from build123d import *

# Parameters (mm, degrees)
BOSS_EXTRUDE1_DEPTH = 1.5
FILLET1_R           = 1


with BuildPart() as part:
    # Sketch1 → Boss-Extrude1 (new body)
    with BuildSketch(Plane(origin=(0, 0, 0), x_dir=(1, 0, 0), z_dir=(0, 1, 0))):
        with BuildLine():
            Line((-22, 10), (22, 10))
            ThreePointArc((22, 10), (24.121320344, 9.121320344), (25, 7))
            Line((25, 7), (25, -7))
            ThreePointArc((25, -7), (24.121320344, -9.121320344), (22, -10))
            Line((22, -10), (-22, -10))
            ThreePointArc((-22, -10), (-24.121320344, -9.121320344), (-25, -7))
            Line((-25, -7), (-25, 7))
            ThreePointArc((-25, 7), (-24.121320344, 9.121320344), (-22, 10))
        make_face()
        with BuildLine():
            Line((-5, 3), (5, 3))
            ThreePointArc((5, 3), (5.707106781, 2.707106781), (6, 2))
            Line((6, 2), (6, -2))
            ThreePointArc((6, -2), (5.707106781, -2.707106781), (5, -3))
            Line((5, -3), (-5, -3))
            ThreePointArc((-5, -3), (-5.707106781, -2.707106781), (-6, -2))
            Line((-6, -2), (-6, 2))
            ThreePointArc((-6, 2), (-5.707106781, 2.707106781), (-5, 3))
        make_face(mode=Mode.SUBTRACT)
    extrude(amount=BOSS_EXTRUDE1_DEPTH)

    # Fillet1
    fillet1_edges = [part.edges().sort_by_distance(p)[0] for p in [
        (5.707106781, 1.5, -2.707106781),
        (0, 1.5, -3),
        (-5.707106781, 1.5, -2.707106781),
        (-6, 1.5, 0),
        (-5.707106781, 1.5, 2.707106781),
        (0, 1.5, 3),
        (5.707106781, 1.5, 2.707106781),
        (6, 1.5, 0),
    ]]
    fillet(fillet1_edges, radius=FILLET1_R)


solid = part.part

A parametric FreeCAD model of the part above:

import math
import FreeCAD as App
import Part
import Sketcher

V = App.Vector


def edges_at(feature, points):
    """Names of the edges that pass closest to the given points."""
    edges = feature.Shape.Edges
    near = lambda p: min(range(len(edges)), key=lambda i: edges[i].distToShape(Part.Vertex(*p))[0])
    return sorted({f"Edge{near(p) + 1}" for p in points})

doc = App.newDocument("Part")
body = doc.addObject("PartDesign::Body", "Body")

sketch1 = doc.addObject("Sketcher::SketchObject", "Sketch")
body.addObject(sketch1)
sketch1.AttachmentSupport = (doc.XZ_Plane, [""])
sketch1.MapMode = "FlatFace"
sketch1.addGeometry(Part.LineSegment(V(22, -10, 0), V(-22, -10, 0)), False)
sketch1.addGeometry(Part.ArcOfCircle(Part.Circle(V(-22, -7, 0), V(0, 0, 1), 3), math.radians(180), math.radians(270)), False)
sketch1.addGeometry(Part.LineSegment(V(-25, -7, 0), V(-25, 7, 0)), False)
sketch1.addGeometry(Part.ArcOfCircle(Part.Circle(V(-22, 7, 0), V(0, 0, 1), 3), math.radians(90), math.radians(180)), False)
sketch1.addGeometry(Part.LineSegment(V(-22, 10, 0), V(22, 10, 0)), False)
sketch1.addGeometry(Part.ArcOfCircle(Part.Circle(V(22, 7, 0), V(0, 0, 1), 3), math.radians(0), math.radians(90)), False)
sketch1.addGeometry(Part.LineSegment(V(25, 7, 0), V(25, -7, 0)), False)
sketch1.addGeometry(Part.ArcOfCircle(Part.Circle(V(22, -7, 0), V(0, 0, 1), 3), math.radians(-90), math.radians(0)), False)
sketch1.addGeometry(Part.LineSegment(V(-5, -3, 0), V(5, -3, 0)), False)
sketch1.addGeometry(Part.ArcOfCircle(Part.Circle(V(5, -2, 0), V(0, 0, 1), 1), math.radians(-90), math.radians(0)), False)
sketch1.addGeometry(Part.LineSegment(V(6, -2, 0), V(6, 2, 0)), False)
sketch1.addGeometry(Part.ArcOfCircle(Part.Circle(V(5, 2, 0), V(0, 0, 1), 1), math.radians(0), math.radians(90)), False)
sketch1.addGeometry(Part.LineSegment(V(5, 3, 0), V(-5, 3, 0)), False)
sketch1.addGeometry(Part.ArcOfCircle(Part.Circle(V(-5, 2, 0), V(0, 0, 1), 1), math.radians(90), math.radians(180)), False)
sketch1.addGeometry(Part.LineSegment(V(-6, 2, 0), V(-6, -2, 0)), False)
sketch1.addGeometry(Part.ArcOfCircle(Part.Circle(V(-5, -2, 0), V(0, 0, 1), 1), math.radians(-180), math.radians(-90)), False)
sketch1.addConstraint(Sketcher.Constraint("Tangent", 0, 2, 1, 2))
sketch1.addConstraint(Sketcher.Constraint("Tangent", 1, 1, 2, 1))
sketch1.addConstraint(Sketcher.Constraint("Tangent", 2, 2, 3, 2))
sketch1.addConstraint(Sketcher.Constraint("Tangent", 3, 1, 4, 1))
sketch1.addConstraint(Sketcher.Constraint("Tangent", 4, 2, 5, 2))
sketch1.addConstraint(Sketcher.Constraint("Tangent", 5, 1, 6, 1))
sketch1.addConstraint(Sketcher.Constraint("Tangent", 6, 2, 7, 2))
sketch1.addConstraint(Sketcher.Constraint("Tangent", 7, 1, 0, 1))
sketch1.addConstraint(Sketcher.Constraint("Tangent", 8, 2, 9, 1))
sketch1.addConstraint(Sketcher.Constraint("Tangent", 9, 2, 10, 1))
sketch1.addConstraint(Sketcher.Constraint("Tangent", 10, 2, 11, 1))
sketch1.addConstraint(Sketcher.Constraint("Tangent", 11, 2, 12, 1))
sketch1.addConstraint(Sketcher.Constraint("Tangent", 12, 2, 13, 1))
sketch1.addConstraint(Sketcher.Constraint("Tangent", 13, 2, 14, 1))
sketch1.addConstraint(Sketcher.Constraint("Tangent", 14, 2, 15, 1))
sketch1.addConstraint(Sketcher.Constraint("Tangent", 15, 2, 8, 1))
sketch1.addConstraint(Sketcher.Constraint("Horizontal", 0))
sketch1.addConstraint(Sketcher.Constraint("Vertical", 2))
sketch1.addConstraint(Sketcher.Constraint("Horizontal", 4))
sketch1.addConstraint(Sketcher.Constraint("Vertical", 6))
sketch1.addConstraint(Sketcher.Constraint("Horizontal", 8))
sketch1.addConstraint(Sketcher.Constraint("Vertical", 10))
sketch1.addConstraint(Sketcher.Constraint("Horizontal", 12))
sketch1.addConstraint(Sketcher.Constraint("Vertical", 14))
sketch1.addConstraint(Sketcher.Constraint("Equal", 1, 3))
sketch1.addConstraint(Sketcher.Constraint("Equal", 3, 5))
sketch1.addConstraint(Sketcher.Constraint("Equal", 5, 7))
sketch1.addConstraint(Sketcher.Constraint("Equal", 9, 11))
sketch1.addConstraint(Sketcher.Constraint("Equal", 11, 13))
sketch1.addConstraint(Sketcher.Constraint("Equal", 13, 15))
sketch1.addConstraint(Sketcher.Constraint("Symmetric", 1, 3, 5, 3, -1, 1))
sketch1.addConstraint(Sketcher.Constraint("Symmetric", 9, 3, 13, 3, -1, 1))
sketch1.addConstraint(Sketcher.Constraint("Radius", 1, 3.0))
sketch1.addConstraint(Sketcher.Constraint("Radius", 9, 1.0))
sketch1.addConstraint(Sketcher.Constraint("DistanceX", 0, 2, 0, 1, 44.0))
sketch1.addConstraint(Sketcher.Constraint("DistanceX", 8, 1, 8, 2, 10.0))
sketch1.addConstraint(Sketcher.Constraint("DistanceY", 2, 1, 2, 2, 14.0))
sketch1.addConstraint(Sketcher.Constraint("DistanceY", 10, 1, 10, 2, 4.0))
pad1 = doc.addObject("PartDesign::Pad", "Pad")
body.addObject(pad1)
pad1.Profile = sketch1
pad1.Length = 1.5
pad1.Reversed = True
doc.recompute()

fillet = doc.addObject("PartDesign::Fillet", "Fillet")
body.addObject(fillet)
fillet.Base = (pad1, edges_at(pad1, [
    (5.707, 1.5, -2.707),
    (0, 1.5, -3),
    (-5.707, 1.5, -2.707),
    (-6, 1.5, 0),
    (-5.707, 1.5, 2.707),
    (0, 1.5, 3),
    (5.707, 1.5, 2.707),
    (6, 1.5, 0),
]))
fillet.Radius = 1

doc.recompute()
